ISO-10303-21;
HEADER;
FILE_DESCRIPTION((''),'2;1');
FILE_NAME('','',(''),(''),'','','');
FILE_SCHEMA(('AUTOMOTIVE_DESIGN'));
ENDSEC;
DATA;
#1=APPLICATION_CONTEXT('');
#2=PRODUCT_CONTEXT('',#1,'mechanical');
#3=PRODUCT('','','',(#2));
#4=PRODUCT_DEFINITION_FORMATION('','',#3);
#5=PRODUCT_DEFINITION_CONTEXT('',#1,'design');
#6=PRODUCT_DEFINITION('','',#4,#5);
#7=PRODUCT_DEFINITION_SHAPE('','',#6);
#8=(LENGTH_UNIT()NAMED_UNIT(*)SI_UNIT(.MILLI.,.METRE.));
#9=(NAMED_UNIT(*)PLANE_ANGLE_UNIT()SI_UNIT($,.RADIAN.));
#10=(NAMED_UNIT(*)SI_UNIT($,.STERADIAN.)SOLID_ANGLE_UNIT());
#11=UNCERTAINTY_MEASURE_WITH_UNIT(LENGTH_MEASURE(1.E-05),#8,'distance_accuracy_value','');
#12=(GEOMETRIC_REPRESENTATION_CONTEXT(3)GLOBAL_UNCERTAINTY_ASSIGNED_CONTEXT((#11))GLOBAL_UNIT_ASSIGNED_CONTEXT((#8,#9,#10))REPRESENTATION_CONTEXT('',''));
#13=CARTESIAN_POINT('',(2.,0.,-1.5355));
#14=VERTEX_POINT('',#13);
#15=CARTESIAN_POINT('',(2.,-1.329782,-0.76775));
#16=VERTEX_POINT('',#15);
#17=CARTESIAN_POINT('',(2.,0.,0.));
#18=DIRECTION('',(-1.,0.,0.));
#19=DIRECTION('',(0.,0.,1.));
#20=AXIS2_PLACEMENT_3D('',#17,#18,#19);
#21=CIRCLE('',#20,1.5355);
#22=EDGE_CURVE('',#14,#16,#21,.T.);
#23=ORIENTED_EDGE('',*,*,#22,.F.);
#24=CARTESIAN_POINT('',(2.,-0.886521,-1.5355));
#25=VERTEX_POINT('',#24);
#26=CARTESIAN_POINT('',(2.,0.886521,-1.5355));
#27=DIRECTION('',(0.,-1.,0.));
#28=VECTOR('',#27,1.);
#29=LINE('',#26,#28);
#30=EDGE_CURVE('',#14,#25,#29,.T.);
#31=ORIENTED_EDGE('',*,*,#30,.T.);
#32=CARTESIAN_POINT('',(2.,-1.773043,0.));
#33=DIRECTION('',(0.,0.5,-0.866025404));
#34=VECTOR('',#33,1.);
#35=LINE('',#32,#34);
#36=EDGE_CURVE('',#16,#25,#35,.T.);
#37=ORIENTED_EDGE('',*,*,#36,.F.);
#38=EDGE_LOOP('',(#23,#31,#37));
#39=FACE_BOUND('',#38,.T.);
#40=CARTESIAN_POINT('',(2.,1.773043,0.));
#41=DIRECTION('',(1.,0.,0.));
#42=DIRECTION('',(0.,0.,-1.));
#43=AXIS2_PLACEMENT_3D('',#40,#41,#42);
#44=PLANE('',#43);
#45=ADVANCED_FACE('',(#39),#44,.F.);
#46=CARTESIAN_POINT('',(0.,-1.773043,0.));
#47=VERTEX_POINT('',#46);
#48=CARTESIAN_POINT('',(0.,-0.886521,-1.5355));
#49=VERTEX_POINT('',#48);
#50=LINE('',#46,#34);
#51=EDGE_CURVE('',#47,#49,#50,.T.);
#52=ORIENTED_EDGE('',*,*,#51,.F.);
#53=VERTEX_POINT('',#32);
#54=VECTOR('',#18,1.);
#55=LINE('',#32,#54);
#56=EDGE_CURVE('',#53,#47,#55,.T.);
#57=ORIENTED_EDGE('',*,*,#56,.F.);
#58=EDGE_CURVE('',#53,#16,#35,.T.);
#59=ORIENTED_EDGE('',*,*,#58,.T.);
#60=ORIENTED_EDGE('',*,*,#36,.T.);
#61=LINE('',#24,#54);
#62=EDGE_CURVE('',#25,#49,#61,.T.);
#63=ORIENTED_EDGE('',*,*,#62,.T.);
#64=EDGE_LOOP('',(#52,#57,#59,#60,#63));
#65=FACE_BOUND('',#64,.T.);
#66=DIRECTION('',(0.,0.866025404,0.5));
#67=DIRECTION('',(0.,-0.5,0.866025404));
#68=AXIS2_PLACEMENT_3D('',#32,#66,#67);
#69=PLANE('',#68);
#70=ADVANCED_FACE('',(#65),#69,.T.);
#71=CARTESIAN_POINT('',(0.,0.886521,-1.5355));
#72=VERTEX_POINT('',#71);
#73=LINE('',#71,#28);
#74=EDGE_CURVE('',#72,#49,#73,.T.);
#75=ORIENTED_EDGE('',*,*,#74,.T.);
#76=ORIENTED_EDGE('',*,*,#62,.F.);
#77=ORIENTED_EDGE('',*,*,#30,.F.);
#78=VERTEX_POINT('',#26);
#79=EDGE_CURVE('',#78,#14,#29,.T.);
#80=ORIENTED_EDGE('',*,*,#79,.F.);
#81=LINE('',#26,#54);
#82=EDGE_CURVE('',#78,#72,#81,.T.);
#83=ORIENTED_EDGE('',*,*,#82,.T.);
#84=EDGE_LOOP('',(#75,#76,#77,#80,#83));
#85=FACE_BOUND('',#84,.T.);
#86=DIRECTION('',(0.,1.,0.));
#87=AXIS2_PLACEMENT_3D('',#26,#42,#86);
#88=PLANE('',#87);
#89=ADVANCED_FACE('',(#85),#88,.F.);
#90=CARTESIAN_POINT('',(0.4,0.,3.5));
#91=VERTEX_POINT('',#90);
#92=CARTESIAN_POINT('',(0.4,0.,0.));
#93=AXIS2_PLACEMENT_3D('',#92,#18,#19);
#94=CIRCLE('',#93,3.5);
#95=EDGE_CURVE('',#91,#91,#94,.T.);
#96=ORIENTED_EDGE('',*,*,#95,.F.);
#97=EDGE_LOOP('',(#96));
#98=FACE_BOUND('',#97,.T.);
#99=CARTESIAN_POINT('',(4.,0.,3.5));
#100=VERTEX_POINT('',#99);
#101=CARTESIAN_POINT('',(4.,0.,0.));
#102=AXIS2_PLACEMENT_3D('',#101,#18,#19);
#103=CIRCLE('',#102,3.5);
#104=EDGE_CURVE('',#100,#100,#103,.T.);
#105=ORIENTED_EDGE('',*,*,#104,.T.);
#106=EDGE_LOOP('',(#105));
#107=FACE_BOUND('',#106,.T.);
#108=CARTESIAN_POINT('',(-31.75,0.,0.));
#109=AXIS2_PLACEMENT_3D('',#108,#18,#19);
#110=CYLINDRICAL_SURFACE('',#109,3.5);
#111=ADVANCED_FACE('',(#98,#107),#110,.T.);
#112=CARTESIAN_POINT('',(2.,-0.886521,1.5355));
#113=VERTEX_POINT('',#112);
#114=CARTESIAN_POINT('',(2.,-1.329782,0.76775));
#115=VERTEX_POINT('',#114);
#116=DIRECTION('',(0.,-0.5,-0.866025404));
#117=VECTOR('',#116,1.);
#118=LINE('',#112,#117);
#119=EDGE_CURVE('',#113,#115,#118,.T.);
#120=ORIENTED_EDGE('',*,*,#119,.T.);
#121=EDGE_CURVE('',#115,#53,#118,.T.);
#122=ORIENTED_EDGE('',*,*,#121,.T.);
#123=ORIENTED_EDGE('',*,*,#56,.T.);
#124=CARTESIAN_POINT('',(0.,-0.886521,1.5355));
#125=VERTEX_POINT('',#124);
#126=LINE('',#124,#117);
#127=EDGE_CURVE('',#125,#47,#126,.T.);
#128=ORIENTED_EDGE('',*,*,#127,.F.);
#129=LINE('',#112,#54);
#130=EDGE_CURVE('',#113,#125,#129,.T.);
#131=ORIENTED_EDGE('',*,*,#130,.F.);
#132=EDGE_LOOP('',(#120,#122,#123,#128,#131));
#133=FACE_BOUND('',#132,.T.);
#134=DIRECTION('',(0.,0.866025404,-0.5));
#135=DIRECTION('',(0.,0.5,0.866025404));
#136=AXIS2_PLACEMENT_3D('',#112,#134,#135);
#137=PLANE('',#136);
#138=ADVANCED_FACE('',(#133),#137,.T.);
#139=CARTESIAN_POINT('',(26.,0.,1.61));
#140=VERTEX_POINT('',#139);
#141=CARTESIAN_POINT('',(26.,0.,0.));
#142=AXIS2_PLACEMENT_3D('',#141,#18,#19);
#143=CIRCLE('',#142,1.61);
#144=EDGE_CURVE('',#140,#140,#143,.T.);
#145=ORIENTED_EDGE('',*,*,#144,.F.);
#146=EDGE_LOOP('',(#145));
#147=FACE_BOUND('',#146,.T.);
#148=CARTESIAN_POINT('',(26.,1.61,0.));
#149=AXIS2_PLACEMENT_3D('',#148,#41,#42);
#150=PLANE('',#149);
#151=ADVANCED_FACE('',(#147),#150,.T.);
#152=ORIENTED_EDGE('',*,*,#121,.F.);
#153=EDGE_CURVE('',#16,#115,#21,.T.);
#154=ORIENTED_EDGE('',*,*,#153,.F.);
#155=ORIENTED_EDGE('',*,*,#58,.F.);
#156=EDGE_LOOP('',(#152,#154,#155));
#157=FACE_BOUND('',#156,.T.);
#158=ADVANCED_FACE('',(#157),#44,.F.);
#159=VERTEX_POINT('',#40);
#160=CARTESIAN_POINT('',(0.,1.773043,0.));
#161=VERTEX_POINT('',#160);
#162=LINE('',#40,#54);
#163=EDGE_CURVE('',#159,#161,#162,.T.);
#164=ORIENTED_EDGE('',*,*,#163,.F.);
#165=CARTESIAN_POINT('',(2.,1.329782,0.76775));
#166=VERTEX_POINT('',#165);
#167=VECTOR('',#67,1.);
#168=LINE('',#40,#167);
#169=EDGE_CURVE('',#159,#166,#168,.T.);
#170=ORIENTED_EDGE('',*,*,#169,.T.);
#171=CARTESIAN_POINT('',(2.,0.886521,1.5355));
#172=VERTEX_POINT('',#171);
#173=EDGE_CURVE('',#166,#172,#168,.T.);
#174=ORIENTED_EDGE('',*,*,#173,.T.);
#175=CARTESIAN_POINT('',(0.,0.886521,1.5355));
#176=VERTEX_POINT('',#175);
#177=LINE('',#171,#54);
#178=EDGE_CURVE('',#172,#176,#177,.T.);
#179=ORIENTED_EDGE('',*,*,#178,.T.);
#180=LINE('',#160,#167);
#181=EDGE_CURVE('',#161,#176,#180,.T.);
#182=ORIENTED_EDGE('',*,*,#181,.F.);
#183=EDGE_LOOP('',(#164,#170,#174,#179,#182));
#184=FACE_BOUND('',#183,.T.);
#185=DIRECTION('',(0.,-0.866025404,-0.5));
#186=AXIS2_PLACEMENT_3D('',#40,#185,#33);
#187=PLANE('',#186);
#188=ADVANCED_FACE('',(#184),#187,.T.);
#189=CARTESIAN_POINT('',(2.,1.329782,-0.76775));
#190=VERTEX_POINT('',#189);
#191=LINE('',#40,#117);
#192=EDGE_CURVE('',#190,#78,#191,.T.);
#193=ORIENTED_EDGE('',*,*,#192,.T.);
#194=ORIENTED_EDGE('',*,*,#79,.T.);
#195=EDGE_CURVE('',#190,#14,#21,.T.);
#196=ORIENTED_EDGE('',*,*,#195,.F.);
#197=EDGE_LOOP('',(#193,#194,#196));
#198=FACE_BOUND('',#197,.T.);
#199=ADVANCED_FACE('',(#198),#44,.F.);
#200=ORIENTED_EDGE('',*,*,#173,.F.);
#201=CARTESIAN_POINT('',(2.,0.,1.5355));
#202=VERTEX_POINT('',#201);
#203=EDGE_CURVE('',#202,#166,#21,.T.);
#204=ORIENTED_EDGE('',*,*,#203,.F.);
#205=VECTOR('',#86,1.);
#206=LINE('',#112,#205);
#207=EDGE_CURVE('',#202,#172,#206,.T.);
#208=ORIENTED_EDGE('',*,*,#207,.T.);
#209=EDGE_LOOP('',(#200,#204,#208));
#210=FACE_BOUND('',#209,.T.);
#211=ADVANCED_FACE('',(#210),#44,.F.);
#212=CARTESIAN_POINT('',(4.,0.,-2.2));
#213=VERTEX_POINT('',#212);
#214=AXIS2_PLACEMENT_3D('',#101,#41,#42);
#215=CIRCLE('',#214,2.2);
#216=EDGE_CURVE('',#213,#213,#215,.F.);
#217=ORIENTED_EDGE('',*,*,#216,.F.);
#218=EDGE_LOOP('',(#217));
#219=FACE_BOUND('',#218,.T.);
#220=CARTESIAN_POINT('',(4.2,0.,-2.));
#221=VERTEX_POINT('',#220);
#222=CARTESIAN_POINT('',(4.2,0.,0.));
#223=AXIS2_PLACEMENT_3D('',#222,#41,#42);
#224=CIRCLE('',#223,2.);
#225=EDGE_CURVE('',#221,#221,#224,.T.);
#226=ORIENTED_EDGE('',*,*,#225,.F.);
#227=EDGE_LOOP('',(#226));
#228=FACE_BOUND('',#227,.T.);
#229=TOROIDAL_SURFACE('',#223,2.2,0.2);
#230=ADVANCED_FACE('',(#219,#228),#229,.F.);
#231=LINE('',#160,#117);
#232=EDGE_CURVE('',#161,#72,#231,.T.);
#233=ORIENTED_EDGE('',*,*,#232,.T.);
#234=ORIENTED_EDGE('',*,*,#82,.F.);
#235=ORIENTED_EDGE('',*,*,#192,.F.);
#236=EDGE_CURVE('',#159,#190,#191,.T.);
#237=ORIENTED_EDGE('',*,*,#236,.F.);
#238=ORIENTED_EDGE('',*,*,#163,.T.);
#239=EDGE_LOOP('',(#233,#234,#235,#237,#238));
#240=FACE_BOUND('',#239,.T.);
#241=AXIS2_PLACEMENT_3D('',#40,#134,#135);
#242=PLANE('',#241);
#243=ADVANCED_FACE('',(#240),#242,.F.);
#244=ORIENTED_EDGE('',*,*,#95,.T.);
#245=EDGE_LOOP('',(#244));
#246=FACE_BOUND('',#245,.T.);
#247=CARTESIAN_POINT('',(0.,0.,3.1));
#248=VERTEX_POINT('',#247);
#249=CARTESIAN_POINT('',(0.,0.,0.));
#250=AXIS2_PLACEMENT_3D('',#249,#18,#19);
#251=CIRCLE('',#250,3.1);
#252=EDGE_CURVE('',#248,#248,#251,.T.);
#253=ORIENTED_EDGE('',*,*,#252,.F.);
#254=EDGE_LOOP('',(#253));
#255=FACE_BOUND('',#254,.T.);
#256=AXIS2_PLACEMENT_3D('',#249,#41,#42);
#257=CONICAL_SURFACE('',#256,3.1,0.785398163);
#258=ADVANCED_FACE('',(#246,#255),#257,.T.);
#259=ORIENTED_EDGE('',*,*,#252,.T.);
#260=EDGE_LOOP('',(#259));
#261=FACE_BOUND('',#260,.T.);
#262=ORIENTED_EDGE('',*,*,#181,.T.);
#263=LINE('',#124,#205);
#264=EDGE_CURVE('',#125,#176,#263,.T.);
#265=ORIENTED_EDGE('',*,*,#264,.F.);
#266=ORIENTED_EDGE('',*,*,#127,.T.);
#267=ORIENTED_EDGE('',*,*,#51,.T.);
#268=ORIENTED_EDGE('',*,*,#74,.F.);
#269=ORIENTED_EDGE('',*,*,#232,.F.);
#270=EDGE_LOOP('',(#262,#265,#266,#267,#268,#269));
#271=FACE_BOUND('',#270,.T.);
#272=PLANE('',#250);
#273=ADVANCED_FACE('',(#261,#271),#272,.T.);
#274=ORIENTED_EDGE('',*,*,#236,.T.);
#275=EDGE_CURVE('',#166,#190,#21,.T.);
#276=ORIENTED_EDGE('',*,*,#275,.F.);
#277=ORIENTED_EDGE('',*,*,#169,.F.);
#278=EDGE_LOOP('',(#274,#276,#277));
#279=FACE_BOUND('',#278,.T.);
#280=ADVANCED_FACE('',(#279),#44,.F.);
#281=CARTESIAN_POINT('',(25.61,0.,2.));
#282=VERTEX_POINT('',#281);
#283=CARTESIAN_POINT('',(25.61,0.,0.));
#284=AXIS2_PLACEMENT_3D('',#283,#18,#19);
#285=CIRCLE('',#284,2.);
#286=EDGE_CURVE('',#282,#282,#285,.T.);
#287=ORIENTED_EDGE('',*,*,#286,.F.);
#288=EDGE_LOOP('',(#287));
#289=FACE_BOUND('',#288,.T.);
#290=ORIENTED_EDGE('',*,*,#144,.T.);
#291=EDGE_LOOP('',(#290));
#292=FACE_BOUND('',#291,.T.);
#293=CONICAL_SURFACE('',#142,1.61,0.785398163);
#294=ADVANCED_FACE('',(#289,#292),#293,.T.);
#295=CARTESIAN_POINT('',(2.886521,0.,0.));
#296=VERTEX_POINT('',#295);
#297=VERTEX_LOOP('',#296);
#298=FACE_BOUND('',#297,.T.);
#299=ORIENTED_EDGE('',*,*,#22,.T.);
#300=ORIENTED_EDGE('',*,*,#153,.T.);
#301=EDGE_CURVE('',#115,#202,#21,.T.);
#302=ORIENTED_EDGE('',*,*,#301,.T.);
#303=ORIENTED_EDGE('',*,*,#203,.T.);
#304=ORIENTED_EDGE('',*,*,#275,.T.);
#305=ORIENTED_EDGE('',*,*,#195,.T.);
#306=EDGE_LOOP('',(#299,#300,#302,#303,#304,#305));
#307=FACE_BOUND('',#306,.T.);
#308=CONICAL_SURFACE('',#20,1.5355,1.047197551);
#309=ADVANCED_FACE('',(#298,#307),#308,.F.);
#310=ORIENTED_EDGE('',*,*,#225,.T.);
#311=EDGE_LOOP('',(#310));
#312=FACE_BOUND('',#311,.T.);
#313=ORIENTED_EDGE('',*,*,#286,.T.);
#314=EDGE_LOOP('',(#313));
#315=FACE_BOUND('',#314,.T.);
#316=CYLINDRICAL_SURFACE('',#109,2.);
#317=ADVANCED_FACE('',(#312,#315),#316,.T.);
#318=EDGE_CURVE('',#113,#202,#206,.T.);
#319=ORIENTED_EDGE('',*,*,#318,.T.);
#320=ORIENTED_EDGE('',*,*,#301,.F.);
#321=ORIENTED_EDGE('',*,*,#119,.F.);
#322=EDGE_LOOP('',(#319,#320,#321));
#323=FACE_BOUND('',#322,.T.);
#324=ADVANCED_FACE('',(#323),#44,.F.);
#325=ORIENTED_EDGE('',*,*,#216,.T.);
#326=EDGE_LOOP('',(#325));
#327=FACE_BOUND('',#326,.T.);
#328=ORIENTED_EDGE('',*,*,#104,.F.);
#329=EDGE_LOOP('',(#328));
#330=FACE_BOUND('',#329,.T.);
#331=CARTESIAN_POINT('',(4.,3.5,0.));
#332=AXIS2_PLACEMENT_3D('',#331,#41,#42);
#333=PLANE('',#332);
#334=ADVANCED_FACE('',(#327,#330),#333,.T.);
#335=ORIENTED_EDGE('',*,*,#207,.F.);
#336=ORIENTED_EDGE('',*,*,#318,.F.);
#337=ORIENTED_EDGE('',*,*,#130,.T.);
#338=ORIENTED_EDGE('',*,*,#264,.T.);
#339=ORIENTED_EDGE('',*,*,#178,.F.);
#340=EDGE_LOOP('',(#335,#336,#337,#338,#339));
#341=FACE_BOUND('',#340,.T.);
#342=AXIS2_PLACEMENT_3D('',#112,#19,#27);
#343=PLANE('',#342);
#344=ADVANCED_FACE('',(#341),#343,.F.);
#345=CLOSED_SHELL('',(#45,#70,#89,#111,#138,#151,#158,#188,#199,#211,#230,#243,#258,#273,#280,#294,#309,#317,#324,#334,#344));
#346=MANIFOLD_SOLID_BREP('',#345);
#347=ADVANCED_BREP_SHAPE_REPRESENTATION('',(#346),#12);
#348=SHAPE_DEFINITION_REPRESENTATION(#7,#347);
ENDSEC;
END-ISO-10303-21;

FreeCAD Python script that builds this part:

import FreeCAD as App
import Part
import Sketcher
Q = App.Units.Quantity


def edges_at(feature, points):
    """Names of the edges that pass closest to the given points."""
    edges = feature.Shape.Edges
    near = lambda p: min(range(len(edges)), key=lambda i: edges[i].distToShape(Part.Vertex(*p))[0])
    return sorted({f"Edge{near(p) + 1}" for p in points})

doc = App.newDocument("Part")
body = doc.addObject("PartDesign::Body", "Body")

sketch1 = doc.addObject("Sketcher::SketchObject", "Sketch")
body.addObject(sketch1)
sketch1.AttachmentSupport = (doc.XY_Plane, [""])
sketch1.MapMode = "FlatFace"
sketch1.addGeometry([
    Part.LineSegment(App.Vector(0, 3.1, 0), App.Vector(0, 0, 0)),
    Part.LineSegment(App.Vector(0, 0, 0), App.Vector(26, 0, 0)),
    Part.LineSegment(App.Vector(26, 0, 0), App.Vector(26, 1.6, 0)),
    Part.LineSegment(App.Vector(26, 1.6, 0), App.Vector(25.6, 2, 0)),
    Part.LineSegment(App.Vector(25.6, 2, 0), App.Vector(4, 2, 0)),
    Part.LineSegment(App.Vector(4, 2, 0), App.Vector(4, 3.5, 0)),
    Part.LineSegment(App.Vector(4, 3.5, 0), App.Vector(0.4, 3.5, 0)),
    Part.LineSegment(App.Vector(0.4, 3.5, 0), App.Vector(0, 3.1, 0)),
], False)
sketch1.addConstraint([
    Sketcher.Constraint("Coincident", 0, 2, 1, 1),
    Sketcher.Constraint("Coincident", 1, 2, 2, 1),
    Sketcher.Constraint("Coincident", 2, 2, 3, 1),
    Sketcher.Constraint("Coincident", 3, 2, 4, 1),
    Sketcher.Constraint("Coincident", 4, 2, 5, 1),
    Sketcher.Constraint("Coincident", 5, 2, 6, 1),
    Sketcher.Constraint("Coincident", 6, 2, 7, 1),
    Sketcher.Constraint("Coincident", 7, 2, 0, 1),
    Sketcher.Constraint("Vertical", 0),
    Sketcher.Constraint("Horizontal", 1),
    Sketcher.Constraint("Vertical", 2),
    Sketcher.Constraint("Horizontal", 4),
    Sketcher.Constraint("Vertical", 5),
    Sketcher.Constraint("Horizontal", 6),
    Sketcher.Constraint("Coincident", 0, 2, -1, 1),
    Sketcher.Constraint("Perpendicular", 3, 7),
    Sketcher.Constraint("DistanceX", 1, 1, 1, 2, 26.0),
    Sketcher.Constraint("Angle", 3, Q("135 deg")),
    Sketcher.Constraint("DistanceX", 6, 2, 6, 1, 3.6),
    Sketcher.Constraint("DistanceY", 0, 2, 0, 1, 3.1),
    Sketcher.Constraint("DistanceY", 5, 1, 5, 2, 1.5),
    Sketcher.Constraint("DistanceY", -1, 1, 3, 2, 2.0),
    Sketcher.Constraint("DistanceX", 4, 2, 4, 1, 21.61),
])
revolution = doc.addObject("PartDesign::Revolution", "Revolution")
body.addObject(revolution)
revolution.Profile = sketch1
revolution.ReferenceAxis = (sketch1, ["H_Axis"])
revolution.Angle = 360
doc.recompute()

fillet = doc.addObject("PartDesign::Fillet", "Fillet")
body.addObject(fillet)
fillet.Base = (revolution, edges_at(revolution, [(4, 0, -2)]))
fillet.Radius = 0.2

sketch2 = doc.addObject("Sketcher::SketchObject", "Sketch001")
body.addObject(sketch2)
sketch2.AttachmentSupport = (doc.XY_Plane, [""])
sketch2.MapMode = "FlatFace"
sketch2.addGeometry([
    Part.LineSegment(App.Vector(2, 1.5, 0), App.Vector(0, 1.5, 0)),
    Part.LineSegment(App.Vector(0, 1.5, 0), App.Vector(0, 0, 0)),
    Part.LineSegment(App.Vector(0, 0, 0), App.Vector(2.9, 0, 0)),
    Part.LineSegment(App.Vector(2.9, 0, 0), App.Vector(2, 1.5, 0)),
], False)
sketch2.addConstraint([
    Sketcher.Constraint("Coincident", 0, 2, 1, 1),
    Sketcher.Constraint("Coincident", 1, 2, 2, 1),
    Sketcher.Constraint("Coincident", 2, 2, 3, 1),
    Sketcher.Constraint("Coincident", 3, 2, 0, 1),
    Sketcher.Constraint("Horizontal", 0),
    Sketcher.Constraint("Vertical", 1),
    Sketcher.Constraint("Horizontal", 2),
    Sketcher.Constraint("Coincident", 1, 2, -1, 1),
    Sketcher.Constraint("DistanceX", 0, 2, 0, 1, 2.0),
    Sketcher.Constraint("Angle", 3, Q("120 deg")),
    Sketcher.Constraint("DistanceY", 1, 2, 1, 1, 1.5355),
])
groove = doc.addObject("PartDesign::Groove", "Groove")
body.addObject(groove)
groove.Profile = sketch2
groove.ReferenceAxis = (sketch2, ["H_Axis"])
groove.Angle = 360

sketch3 = doc.addObject("Sketcher::SketchObject", "Sketch002")
body.addObject(sketch3)
sketch3.AttachmentSupport = (doc.YZ_Plane, [""])
sketch3.MapMode = "FlatFace"
sketch3.addGeometry([
    Part.LineSegment(App.Vector(1.8, 0, 0), App.Vector(0.9, -1.5, 0)),
    Part.LineSegment(App.Vector(0.9, -1.5, 0), App.Vector(-0.9, -1.5, 0)),
    Part.LineSegment(App.Vector(-0.9, -1.5, 0), App.Vector(-1.8, 0, 0)),
    Part.LineSegment(App.Vector(-1.8, 0, 0), App.Vector(-0.9, 1.5, 0)),
    Part.LineSegment(App.Vector(-0.9, 1.5, 0), App.Vector(0.9, 1.5, 0)),
    Part.LineSegment(App.Vector(0.9, 1.5, 0), App.Vector(1.8, 0, 0)),
], False)
sketch3.addConstraint([
    Sketcher.Constraint("Coincident", 0, 2, 1, 1),
    Sketcher.Constraint("Coincident", 1, 2, 2, 1),
    Sketcher.Constraint("Coincident", 2, 2, 3, 1),
    Sketcher.Constraint("Coincident", 3, 2, 4, 1),
    Sketcher.Constraint("Coincident", 4, 2, 5, 1),
    Sketcher.Constraint("Coincident", 5, 2, 0, 1),
    Sketcher.Constraint("Horizontal", 1),
    Sketcher.Constraint("Horizontal", 4),
    Sketcher.Constraint("Symmetric", 0, 2, 3, 2, -1, 1),
    Sketcher.Constraint("Symmetric", 2, 2, 5, 2, -1, 1),
    Sketcher.Constraint("PointOnObject", 2, 2, -1),
    Sketcher.Constraint("Parallel", 2, 5),
    Sketcher.Constraint("Vertical", 1, 2, 3, 2),
    Sketcher.Constraint("Angle", 0, Q("-120 deg")),
    Sketcher.Constraint("DistanceY", 1, 2, 3, 2, 3.071),
    Sketcher.Constraint("DistanceX", 1, 2, 1, 1, 1.773043),
])
pocket1 = doc.addObject("PartDesign::Pocket", "Pocket")
body.addObject(pocket1)
pocket1.Profile = sketch3
pocket1.Length = 2
pocket1.Reversed = True

doc.recompute()
